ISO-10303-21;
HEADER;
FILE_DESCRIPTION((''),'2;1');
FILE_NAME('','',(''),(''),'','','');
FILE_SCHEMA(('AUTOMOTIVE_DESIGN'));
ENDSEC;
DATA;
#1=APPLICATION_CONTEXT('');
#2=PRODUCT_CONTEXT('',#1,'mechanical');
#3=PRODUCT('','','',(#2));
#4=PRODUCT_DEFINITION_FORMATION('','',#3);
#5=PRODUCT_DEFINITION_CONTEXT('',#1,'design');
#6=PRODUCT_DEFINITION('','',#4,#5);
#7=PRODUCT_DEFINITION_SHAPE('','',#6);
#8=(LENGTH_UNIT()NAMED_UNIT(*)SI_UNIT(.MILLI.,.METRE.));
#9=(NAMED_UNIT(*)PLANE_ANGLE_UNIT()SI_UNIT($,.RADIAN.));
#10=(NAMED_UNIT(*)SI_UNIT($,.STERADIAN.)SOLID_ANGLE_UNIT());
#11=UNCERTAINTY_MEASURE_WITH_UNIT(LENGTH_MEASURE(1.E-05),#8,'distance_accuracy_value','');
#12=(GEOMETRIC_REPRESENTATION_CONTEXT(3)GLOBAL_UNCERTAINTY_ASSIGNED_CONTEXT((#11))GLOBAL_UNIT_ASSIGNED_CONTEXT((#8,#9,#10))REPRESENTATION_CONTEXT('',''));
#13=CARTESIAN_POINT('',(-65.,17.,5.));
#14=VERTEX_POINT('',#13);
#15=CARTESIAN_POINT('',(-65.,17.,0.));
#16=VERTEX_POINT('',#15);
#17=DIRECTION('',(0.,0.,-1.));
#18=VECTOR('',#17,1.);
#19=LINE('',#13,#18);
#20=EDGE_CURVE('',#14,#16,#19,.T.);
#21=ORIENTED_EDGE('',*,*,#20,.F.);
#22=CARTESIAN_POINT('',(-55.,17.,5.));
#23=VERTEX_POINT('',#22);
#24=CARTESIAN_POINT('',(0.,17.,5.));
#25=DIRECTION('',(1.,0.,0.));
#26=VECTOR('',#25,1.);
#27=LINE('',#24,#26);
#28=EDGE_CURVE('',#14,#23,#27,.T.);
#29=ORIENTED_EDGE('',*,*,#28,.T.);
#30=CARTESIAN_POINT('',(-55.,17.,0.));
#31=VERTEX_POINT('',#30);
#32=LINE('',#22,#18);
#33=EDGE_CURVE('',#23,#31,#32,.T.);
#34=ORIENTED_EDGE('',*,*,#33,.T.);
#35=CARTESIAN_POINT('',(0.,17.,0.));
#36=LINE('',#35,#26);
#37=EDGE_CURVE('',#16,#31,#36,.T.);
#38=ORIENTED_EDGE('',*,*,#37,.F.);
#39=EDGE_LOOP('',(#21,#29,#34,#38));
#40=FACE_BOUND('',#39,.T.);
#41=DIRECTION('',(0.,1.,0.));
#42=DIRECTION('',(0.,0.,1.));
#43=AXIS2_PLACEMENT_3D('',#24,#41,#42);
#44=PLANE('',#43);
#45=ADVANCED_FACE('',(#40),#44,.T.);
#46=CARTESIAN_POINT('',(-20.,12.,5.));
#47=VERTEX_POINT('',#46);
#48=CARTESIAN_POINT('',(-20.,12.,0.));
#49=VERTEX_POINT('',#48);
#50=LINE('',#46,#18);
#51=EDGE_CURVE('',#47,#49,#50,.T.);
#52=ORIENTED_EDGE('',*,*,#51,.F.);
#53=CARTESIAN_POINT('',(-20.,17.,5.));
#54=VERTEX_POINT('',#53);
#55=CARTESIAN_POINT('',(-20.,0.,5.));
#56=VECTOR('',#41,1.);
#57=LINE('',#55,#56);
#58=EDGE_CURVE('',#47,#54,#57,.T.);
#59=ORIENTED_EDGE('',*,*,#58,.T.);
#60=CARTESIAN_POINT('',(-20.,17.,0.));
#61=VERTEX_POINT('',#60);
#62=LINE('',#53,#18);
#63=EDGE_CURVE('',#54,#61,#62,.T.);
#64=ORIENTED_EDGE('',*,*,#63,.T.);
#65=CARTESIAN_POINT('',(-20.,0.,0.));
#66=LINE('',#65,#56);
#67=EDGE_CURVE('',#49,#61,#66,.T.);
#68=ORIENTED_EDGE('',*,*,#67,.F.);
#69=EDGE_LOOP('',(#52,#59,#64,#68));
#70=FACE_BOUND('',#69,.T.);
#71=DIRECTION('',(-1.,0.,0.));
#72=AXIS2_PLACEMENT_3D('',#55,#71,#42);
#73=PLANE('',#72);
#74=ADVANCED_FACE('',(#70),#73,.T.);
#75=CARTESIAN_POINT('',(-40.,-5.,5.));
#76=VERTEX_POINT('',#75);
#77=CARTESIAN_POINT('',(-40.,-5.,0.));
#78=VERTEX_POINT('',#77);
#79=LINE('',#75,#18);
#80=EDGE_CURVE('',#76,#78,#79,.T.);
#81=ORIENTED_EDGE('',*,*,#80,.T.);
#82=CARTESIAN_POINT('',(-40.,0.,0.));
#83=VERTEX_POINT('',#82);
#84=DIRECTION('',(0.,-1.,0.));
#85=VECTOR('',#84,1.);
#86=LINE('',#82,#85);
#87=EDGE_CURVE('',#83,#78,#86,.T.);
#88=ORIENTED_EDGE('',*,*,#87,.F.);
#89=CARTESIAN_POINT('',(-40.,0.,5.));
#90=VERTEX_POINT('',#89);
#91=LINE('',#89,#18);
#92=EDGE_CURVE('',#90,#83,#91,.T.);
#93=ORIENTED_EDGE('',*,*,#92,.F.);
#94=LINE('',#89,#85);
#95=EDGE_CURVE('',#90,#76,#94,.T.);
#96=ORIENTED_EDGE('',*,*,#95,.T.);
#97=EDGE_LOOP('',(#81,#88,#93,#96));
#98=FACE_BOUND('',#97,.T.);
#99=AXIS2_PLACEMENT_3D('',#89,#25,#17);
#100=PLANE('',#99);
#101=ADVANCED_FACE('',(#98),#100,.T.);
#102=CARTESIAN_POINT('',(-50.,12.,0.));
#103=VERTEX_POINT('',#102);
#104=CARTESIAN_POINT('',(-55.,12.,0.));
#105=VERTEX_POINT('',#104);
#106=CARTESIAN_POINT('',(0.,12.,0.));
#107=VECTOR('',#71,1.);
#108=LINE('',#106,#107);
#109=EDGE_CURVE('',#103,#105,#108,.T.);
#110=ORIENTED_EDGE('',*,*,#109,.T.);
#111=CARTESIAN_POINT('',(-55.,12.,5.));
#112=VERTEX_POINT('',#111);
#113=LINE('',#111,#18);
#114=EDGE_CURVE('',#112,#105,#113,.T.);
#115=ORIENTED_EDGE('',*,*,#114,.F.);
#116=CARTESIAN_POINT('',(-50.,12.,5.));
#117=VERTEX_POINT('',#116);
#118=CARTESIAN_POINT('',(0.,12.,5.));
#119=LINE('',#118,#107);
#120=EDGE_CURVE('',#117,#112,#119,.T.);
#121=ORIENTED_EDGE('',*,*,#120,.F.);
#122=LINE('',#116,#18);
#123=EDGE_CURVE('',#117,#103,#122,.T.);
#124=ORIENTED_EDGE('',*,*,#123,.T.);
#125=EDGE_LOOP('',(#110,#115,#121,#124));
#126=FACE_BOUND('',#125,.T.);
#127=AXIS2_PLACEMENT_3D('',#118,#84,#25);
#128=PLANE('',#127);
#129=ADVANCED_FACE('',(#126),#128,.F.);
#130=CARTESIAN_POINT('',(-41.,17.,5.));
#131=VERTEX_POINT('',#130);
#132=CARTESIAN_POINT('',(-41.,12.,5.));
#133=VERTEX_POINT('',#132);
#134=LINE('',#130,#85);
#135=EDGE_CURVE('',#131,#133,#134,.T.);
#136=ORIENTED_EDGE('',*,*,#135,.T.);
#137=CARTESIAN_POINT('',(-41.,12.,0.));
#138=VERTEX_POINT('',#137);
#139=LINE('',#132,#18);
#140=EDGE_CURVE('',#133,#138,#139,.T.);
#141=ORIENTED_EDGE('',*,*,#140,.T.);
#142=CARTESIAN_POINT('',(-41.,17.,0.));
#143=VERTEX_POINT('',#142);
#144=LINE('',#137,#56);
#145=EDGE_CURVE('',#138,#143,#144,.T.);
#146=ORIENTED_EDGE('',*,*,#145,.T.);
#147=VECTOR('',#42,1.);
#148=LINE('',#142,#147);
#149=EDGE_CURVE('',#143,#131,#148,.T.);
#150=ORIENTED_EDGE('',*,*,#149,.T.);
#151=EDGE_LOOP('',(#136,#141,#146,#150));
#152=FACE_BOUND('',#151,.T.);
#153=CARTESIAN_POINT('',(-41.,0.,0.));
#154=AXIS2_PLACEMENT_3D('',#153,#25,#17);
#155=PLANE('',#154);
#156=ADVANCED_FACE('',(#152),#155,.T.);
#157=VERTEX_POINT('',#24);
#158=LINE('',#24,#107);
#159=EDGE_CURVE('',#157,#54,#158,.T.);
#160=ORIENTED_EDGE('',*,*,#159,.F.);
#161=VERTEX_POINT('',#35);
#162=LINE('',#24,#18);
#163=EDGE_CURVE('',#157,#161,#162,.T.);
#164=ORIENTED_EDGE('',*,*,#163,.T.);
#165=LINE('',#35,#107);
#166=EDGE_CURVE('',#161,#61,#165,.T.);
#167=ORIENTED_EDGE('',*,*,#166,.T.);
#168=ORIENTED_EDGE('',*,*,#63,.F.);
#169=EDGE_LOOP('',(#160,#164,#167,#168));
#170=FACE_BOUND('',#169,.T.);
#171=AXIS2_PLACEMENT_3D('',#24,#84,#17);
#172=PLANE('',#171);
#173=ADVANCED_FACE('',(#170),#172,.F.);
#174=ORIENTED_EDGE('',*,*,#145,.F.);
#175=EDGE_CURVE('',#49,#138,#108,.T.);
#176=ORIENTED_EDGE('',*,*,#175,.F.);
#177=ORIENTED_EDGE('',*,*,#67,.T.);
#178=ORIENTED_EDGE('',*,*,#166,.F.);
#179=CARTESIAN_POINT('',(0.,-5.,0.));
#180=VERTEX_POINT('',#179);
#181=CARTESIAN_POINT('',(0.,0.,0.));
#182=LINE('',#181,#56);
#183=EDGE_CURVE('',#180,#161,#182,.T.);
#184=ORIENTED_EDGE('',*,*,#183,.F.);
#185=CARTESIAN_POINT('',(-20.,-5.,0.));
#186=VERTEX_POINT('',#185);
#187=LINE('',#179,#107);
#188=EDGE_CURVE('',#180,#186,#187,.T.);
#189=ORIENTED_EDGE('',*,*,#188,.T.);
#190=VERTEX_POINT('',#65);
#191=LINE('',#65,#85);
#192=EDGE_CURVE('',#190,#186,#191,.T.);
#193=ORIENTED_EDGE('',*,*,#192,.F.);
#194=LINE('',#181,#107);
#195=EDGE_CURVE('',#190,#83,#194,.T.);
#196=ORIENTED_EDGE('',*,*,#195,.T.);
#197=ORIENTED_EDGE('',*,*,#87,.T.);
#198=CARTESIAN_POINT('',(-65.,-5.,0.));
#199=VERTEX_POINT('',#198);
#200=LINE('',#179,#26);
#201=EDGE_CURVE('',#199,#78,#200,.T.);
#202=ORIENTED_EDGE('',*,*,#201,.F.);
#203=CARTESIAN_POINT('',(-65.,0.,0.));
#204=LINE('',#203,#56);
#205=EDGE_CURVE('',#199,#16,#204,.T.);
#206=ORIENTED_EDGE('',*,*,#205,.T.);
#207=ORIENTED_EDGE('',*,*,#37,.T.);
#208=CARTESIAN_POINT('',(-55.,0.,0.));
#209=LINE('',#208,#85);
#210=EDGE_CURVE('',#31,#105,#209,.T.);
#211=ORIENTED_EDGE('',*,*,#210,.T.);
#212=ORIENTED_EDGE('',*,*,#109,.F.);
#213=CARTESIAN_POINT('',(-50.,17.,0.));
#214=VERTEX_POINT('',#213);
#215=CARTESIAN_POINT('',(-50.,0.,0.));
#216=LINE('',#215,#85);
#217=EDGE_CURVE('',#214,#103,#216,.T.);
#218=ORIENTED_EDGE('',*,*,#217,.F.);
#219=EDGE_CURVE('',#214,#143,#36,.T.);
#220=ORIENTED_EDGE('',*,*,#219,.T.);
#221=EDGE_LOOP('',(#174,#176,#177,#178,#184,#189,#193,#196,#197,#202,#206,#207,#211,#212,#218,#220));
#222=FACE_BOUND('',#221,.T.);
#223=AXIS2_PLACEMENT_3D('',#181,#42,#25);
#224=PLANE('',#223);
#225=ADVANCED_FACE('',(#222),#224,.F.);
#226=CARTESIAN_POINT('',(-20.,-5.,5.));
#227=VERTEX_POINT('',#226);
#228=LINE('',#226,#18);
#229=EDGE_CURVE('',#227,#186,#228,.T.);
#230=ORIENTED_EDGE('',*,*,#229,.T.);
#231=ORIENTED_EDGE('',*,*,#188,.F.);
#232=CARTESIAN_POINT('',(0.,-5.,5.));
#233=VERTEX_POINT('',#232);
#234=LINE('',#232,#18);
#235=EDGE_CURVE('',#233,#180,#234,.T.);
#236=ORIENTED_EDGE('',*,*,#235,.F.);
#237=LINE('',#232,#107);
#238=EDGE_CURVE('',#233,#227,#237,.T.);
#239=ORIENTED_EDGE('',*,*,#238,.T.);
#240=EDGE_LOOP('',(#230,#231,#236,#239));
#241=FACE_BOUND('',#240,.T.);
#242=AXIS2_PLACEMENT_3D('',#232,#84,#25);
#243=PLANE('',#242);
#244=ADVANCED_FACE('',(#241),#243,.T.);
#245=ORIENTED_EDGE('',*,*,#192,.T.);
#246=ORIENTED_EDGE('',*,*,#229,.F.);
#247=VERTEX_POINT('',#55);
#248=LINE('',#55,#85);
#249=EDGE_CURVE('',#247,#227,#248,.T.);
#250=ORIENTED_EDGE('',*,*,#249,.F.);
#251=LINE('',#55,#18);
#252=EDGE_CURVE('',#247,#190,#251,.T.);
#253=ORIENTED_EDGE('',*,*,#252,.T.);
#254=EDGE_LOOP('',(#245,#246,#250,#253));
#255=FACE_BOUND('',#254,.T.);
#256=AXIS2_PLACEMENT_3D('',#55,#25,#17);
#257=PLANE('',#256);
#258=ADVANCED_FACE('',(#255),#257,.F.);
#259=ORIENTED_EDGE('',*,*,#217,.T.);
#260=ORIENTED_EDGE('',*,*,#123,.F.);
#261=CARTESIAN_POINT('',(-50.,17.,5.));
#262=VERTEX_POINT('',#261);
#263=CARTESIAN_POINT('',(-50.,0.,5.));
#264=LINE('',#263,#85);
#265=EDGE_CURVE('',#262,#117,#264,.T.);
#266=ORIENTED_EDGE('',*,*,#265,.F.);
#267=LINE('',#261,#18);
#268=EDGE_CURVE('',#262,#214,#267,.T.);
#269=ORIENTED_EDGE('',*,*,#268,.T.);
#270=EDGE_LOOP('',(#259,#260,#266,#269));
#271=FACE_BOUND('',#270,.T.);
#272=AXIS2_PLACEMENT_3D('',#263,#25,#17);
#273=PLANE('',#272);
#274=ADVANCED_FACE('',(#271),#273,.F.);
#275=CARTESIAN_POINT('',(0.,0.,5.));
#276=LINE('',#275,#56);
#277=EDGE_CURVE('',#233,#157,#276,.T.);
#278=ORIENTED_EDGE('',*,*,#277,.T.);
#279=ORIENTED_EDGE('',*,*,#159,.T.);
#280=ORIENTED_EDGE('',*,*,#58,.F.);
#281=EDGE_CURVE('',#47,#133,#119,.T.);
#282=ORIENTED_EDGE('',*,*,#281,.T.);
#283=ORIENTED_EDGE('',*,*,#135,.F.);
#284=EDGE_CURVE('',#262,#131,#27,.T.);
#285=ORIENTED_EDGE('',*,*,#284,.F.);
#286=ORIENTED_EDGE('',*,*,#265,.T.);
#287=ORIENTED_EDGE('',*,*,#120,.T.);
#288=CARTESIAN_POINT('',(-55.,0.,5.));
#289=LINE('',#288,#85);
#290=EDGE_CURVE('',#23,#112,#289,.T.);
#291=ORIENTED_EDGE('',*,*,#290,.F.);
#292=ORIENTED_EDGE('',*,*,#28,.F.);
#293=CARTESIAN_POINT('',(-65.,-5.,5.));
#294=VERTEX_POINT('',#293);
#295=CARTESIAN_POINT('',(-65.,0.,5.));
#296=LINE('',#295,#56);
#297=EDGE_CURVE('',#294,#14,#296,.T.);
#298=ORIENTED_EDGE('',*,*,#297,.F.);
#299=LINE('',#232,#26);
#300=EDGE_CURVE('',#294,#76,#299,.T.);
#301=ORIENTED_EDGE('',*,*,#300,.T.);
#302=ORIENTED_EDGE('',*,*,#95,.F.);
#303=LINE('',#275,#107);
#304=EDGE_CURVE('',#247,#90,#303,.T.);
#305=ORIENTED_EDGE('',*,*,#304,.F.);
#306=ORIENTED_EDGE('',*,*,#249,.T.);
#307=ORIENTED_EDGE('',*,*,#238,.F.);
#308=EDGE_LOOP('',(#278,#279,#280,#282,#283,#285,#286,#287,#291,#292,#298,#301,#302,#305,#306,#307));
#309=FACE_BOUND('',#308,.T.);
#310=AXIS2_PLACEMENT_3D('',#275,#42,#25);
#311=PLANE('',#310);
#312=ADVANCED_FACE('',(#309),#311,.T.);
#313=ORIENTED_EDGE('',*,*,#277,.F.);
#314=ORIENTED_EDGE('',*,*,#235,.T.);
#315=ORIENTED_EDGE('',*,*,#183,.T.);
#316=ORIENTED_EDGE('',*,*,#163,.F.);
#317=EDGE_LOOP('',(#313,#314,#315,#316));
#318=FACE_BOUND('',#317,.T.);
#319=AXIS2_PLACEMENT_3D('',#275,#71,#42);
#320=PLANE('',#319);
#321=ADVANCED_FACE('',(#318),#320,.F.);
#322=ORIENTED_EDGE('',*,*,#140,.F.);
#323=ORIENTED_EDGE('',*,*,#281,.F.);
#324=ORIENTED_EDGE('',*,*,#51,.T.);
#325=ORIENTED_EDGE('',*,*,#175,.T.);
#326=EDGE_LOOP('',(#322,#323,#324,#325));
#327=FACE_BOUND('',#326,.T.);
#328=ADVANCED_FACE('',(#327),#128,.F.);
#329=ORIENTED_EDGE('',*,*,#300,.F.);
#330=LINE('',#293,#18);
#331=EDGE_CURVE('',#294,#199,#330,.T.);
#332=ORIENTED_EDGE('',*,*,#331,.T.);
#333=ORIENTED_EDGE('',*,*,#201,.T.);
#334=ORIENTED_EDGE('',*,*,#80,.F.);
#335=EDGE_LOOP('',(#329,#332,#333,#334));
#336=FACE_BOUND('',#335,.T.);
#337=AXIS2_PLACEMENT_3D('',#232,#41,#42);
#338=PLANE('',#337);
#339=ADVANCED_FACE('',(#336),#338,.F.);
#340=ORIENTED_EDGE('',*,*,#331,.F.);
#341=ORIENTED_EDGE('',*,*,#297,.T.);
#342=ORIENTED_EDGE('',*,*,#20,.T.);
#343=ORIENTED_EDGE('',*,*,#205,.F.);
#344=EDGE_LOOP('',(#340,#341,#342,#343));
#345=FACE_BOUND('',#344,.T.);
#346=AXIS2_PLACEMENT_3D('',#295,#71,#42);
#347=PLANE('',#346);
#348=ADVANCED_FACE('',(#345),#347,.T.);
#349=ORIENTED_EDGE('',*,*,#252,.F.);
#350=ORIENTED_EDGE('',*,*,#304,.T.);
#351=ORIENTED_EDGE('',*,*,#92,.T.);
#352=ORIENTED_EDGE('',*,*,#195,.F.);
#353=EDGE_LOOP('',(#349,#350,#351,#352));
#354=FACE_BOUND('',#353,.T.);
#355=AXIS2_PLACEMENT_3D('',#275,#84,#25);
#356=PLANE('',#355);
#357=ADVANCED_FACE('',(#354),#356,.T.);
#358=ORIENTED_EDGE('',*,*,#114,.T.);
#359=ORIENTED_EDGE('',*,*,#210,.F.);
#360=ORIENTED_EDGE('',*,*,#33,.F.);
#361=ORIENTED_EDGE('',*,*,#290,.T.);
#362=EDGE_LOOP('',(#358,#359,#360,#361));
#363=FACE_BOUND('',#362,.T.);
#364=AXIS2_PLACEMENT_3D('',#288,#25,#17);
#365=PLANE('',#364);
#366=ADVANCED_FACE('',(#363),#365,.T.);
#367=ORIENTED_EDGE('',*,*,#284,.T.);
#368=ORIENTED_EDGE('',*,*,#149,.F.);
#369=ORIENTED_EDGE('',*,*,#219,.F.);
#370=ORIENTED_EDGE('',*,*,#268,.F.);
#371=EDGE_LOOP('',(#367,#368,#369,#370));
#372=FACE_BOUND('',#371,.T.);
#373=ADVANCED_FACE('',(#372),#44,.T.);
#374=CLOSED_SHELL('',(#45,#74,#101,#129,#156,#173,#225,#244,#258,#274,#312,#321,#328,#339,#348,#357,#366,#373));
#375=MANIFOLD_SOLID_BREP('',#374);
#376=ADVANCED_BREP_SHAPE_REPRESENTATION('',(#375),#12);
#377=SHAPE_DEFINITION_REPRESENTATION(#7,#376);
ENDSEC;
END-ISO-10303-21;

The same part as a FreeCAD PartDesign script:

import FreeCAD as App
import Part
import Sketcher

V = App.Vector

doc = App.newDocument("Part")
body = doc.addObject("PartDesign::Body", "Body")

# Sketch on XY plane
sketch1 = body.newObject("Sketcher::SketchObject", "Sketch")
sketch1.AttachmentSupport = (doc.getObject("XY_Plane"), [""])
sketch1.MapMode = "FlatFace"
sketch1.addGeometry([
    Part.LineSegment(V(-20, 12, 0), V(-40, 12, 0)),  # 0
    Part.LineSegment(V(-40, 12, 0), V(-40, 17, 0)),  # 1
    Part.LineSegment(V(-40, 17, 0), V(-50, 17, 0)),  # 2
    Part.LineSegment(V(-50, 17, 0), V(-50, 12, 0)),  # 3
    Part.LineSegment(V(-50, 12, 0), V(-55, 12, 0)),  # 4
    Part.LineSegment(V(-55, 12, 0), V(-55, 17, 0)),  # 5
    Part.LineSegment(V(-55, 17, 0), V(-65, 17, 0)),  # 6
    Part.LineSegment(V(-65, 17, 0), V(-65, -5, 0)),  # 7
    Part.LineSegment(V(-65, -5, 0), V(-40, -5, 0)),  # 8
    Part.LineSegment(V(-40, -5, 0), V(-40, 0, 0)),  # 9
    Part.LineSegment(V(-40, 0, 0), V(-20, 0, 0)),  # 10
    Part.LineSegment(V(-20, 0, 0), V(-20, -5, 0)),  # 11
    Part.LineSegment(V(-20, -5, 0), V(0, -5, 0)),  # 12
    Part.LineSegment(V(0, -5, 0), V(0, 17, 0)),  # 13
    Part.LineSegment(V(0, 17, 0), V(-20, 17, 0)),  # 14
    Part.LineSegment(V(-20, 17, 0), V(-20, 12, 0)),  # 15
], False)
sketch1.addConstraint([
    Sketcher.Constraint("Coincident", 0, 2, 1, 1),
    Sketcher.Constraint("Coincident", 1, 2, 2, 1),
    Sketcher.Constraint("Coincident", 2, 2, 3, 1),
    Sketcher.Constraint("Coincident", 3, 2, 4, 1),
    Sketcher.Constraint("Coincident", 4, 2, 5, 1),
    Sketcher.Constraint("Coincident", 5, 2, 6, 1),
    Sketcher.Constraint("Coincident", 6, 2, 7, 1),
    Sketcher.Constraint("Coincident", 7, 2, 8, 1),
    Sketcher.Constraint("Coincident", 8, 2, 9, 1),
    Sketcher.Constraint("Coincident", 9, 2, 10, 1),
    Sketcher.Constraint("Coincident", 10, 2, 11, 1),
    Sketcher.Constraint("Coincident", 11, 2, 12, 1),
    Sketcher.Constraint("Coincident", 12, 2, 13, 1),
    Sketcher.Constraint("Coincident", 13, 2, 14, 1),
    Sketcher.Constraint("Coincident", 14, 2, 15, 1),
    Sketcher.Constraint("Coincident", 15, 2, 0, 1),
    Sketcher.Constraint("Horizontal", 0),
    Sketcher.Constraint("Vertical", 1),
    Sketcher.Constraint("Horizontal", 2),
    Sketcher.Constraint("Vertical", 3),
    Sketcher.Constraint("Horizontal", 4),
    Sketcher.Constraint("Vertical", 5),
    Sketcher.Constraint("Horizontal", 6),
    Sketcher.Constraint("Vertical", 7),
    Sketcher.Constraint("Horizontal", 8),
    Sketcher.Constraint("Vertical", 9),
    Sketcher.Constraint("Horizontal", 10),
    Sketcher.Constraint("Vertical", 11),
    Sketcher.Constraint("Horizontal", 12),
    Sketcher.Constraint("Vertical", 13),
    Sketcher.Constraint("Horizontal", 14),
    Sketcher.Constraint("Vertical", 15),
    Sketcher.Constraint("PointOnObject", 9, 2, -1),
    Sketcher.Constraint("PointOnObject", 12, 2, -2),
    Sketcher.Constraint("Horizontal", 0, 2, 3, 2),
    Sketcher.Constraint("Horizontal", 2, 2, 5, 2),
    Sketcher.Constraint("Horizontal", 8, 2, 11, 2),
    Sketcher.Constraint("Horizontal", 6, 2, 13, 2),
    Sketcher.Constraint("Vertical", 1, 2, 8, 2),
    Sketcher.Constraint("Vertical", 11, 2, 14, 2),
    Sketcher.Constraint("Equal", 2, 6),
    Sketcher.Constraint("Equal", 10, 12),
    Sketcher.Constraint("Equal", 4, 1),
    Sketcher.Constraint("Equal", 5, 9),
    Sketcher.Constraint("DistanceX", 0, 2, 0, 1, 20.0),
    Sketcher.Constraint("DistanceX", 2, 2, 2, 1, 10.0),
    Sketcher.Constraint("DistanceX", 4, 2, 4, 1, 5.0),
    Sketcher.Constraint("DistanceY", 7, 2, 7, 1, 22.0),
])
pad1 = body.newObject("PartDesign::Pad", "Pad")
pad1.Profile = sketch1
pad1.Length = 5

# Sketch on YZ plane
sketch2 = body.newObject("Sketcher::SketchObject", "Sketch001")
sketch2.AttachmentSupport = (doc.getObject("YZ_Plane"), [""])
sketch2.MapMode = "FlatFace"
sketch2.AttachmentOffset = App.Placement(V(0, 0, -40), App.Rotation())
sketch2.addGeometry([
    Part.LineSegment(V(17, 5, 0), V(12, 5, 0)),
    Part.LineSegment(V(12, 5, 0), V(12, 0, 0)),
    Part.LineSegment(V(12, 0, 0), V(17, 0, 0)),
    Part.LineSegment(V(17, 0, 0), V(17, 5, 0)),
], False)
sketch2.addConstraint([
    Sketcher.Constraint("Coincident", 0, 2, 1, 1),
    Sketcher.Constraint("Coincident", 1, 2, 2, 1),
    Sketcher.Constraint("Coincident", 2, 2, 3, 1),
    Sketcher.Constraint("Coincident", 3, 2, 0, 1),
    Sketcher.Constraint("Horizontal", 0),
    Sketcher.Constraint("Vertical", 1),
    Sketcher.Constraint("Horizontal", 2),
    Sketcher.Constraint("Vertical", 3),
    Sketcher.Constraint("PointOnObject", 1, 2, -1),
    Sketcher.Constraint("Equal", 2, 1),
    Sketcher.Constraint("DistanceX", 0, 2, 0, 1, 5.0),
    Sketcher.Constraint("DistanceX", -1, 1, 0, 2, 12.0),
])
pocket1 = body.newObject("PartDesign::Pocket", "Pocket")
pocket1.Profile = sketch2
pocket1.Length = 1

doc.recompute()
